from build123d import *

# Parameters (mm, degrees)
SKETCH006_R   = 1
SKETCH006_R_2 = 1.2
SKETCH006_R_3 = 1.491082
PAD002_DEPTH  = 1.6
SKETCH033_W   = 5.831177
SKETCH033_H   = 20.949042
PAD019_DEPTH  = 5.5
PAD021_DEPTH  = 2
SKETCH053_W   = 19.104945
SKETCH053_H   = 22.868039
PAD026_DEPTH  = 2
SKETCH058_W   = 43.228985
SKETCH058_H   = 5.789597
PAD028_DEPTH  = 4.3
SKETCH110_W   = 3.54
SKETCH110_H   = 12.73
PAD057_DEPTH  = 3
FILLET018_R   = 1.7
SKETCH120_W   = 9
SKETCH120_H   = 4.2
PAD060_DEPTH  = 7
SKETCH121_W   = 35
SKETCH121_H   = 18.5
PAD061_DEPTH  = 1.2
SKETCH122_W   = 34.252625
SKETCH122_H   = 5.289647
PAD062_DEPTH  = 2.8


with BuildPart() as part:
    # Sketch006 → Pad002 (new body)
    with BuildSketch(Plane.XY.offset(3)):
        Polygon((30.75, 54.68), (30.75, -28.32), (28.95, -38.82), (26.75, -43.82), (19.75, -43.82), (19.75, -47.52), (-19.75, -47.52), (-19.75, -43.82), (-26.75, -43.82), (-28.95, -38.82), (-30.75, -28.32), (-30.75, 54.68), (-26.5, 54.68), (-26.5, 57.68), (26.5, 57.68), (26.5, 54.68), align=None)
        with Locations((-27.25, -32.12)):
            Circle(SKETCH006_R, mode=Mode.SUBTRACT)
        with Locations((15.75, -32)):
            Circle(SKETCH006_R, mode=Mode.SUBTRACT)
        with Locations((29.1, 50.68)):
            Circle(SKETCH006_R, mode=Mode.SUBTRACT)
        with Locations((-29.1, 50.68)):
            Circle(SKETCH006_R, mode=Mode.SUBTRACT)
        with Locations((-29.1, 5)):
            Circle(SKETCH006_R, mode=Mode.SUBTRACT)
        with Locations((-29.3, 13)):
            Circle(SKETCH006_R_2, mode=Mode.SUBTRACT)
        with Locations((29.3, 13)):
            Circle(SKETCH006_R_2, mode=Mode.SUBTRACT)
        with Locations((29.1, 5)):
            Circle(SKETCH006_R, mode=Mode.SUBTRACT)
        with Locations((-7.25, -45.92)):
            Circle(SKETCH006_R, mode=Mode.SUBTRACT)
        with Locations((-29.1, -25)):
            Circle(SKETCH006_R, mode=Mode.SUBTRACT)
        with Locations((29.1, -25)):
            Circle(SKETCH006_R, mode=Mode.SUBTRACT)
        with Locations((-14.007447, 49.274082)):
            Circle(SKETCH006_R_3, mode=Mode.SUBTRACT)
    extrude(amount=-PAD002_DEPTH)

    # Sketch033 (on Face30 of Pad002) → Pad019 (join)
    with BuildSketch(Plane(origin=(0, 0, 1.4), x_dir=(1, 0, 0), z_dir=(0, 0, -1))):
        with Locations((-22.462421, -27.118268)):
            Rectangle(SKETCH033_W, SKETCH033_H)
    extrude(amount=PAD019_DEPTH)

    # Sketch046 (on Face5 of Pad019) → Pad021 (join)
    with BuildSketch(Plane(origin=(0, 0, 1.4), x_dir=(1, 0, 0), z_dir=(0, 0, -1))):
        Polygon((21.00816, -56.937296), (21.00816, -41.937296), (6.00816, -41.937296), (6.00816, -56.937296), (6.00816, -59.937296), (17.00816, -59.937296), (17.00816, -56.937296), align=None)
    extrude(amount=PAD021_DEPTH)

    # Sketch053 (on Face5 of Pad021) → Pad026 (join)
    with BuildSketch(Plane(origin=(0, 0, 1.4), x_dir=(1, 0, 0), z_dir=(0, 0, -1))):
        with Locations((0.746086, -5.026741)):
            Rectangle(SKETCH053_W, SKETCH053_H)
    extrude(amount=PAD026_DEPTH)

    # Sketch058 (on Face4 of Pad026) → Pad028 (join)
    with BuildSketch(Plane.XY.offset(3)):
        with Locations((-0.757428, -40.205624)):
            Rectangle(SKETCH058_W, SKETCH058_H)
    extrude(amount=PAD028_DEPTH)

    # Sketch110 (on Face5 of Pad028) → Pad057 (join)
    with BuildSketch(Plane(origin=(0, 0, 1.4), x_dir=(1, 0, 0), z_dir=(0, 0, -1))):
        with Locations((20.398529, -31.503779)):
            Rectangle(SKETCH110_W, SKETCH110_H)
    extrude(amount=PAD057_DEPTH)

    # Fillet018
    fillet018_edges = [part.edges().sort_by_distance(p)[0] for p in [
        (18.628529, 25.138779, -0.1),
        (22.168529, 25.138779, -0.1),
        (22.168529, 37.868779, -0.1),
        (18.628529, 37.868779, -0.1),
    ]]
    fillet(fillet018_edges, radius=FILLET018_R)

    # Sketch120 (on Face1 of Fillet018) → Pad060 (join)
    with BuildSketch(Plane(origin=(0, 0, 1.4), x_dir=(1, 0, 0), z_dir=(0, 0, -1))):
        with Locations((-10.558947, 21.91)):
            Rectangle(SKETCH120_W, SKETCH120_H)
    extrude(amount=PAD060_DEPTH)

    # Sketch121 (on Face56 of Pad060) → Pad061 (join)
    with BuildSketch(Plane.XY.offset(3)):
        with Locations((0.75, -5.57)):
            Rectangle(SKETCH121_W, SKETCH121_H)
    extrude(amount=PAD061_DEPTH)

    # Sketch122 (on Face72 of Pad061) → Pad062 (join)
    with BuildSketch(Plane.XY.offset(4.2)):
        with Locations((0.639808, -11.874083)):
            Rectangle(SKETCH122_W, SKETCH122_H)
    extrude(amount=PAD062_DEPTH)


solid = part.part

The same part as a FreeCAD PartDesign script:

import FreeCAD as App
import Part
import Sketcher
from FreeCAD import Vector
Q = App.Units.Quantity


def edges_at(feature, points):
    """Names of the edges that pass closest to the given points."""
    edges = feature.Shape.Edges
    near = lambda p: min(range(len(edges)), key=lambda i: edges[i].distToShape(Part.Vertex(*p))[0])
    return sorted({f"Edge{near(p) + 1}" for p in points})


def add_polygon(sketch, points):
    """Adds a closed chain of lines whose ends are joined by coincident constraints."""
    first, n = sketch.GeometryCount, len(points)
    for a, b in zip(points, points[1:] + points[:1]):
        sketch.addGeometry(Part.LineSegment(App.Vector(*a, 0), App.Vector(*b, 0)), False)
    for i in range(n):
        sketch.addConstraint(Sketcher.Constraint("Coincident", first + i, 2, first + (i + 1) % n, 1))

doc = App.newDocument("Part")
params = doc.addObject("Spreadsheet::Sheet", "Params")
for row, (alias, value) in enumerate([
    ("sketch1_diameter", "2 mm"),
    ("sketch1_diameter2", "2.4 mm"),
    ("sketch1_width", "53 mm"),
    ("sketch1_width2", "7 mm"),
    ("sketch1_height", "83 mm"),
    ("pad1_length", "1.6 mm"),
    ("pad2_length", "5.5 mm"),
    ("sketch3_width", "15 mm"),
    ("sketch3_width2", "11 mm"),
    ("sketch3_height", "18 mm"),
    ("pad3_length", "2 mm"),
    ("pad4_length", "2 mm"),
    ("pad5_length", "4.3 mm"),
    ("sketch6_width", "3.54 mm"),
    ("sketch6_height", "12.73 mm"),
    ("pad6_length", "3 mm"),
    ("fillet_radius", "1.7 mm"),
    ("sketch7_width", "9 mm"),
    ("sketch7_height", "4.2 mm"),
    ("pad7_length", "7 mm"),
    ("sketch8_width", "35 mm"),
    ("sketch8_height", "18.5 mm"),
    ("pad8_length", "1.2 mm"),
    ("pad9_length", "2.8 mm"),
], start=1):
    params.set(f"A{row}", alias)
    params.set(f"B{row}", "=" + value)
    params.setAlias(f"B{row}", alias)

body = doc.addObject("PartDesign::Body", "Body")

sketch1 = doc.addObject("Sketcher::SketchObject", "Sketch")
body.addObject(sketch1)
sketch1.AttachmentSupport = (doc.XY_Plane, [""])
sketch1.MapMode = "FlatFace"
sketch1.AttachmentOffset = App.Placement(Vector(0, 0, 3), App.Rotation())
add_polygon(sketch1, [(30.8, -28.3), (30.8, 54.7), (26.5, 54.7), (26.5, 57.7), (-26.5, 57.7), (-26.5, 54.7), (-30.8, 54.7), (-30.8, -28.3), (-28.9, -38.8), (-26.8, -43.8), (-19.8, -43.8), (-19.8, -47.5), (19.8, -47.5), (19.8, -43.8), (26.8, -43.8), (28.9, -38.8)])
sketch1.addGeometry(Part.Circle(Vector(29.1, -25, 0), Vector(0, 0, 1), 1), False)
sketch1.addGeometry(Part.Circle(Vector(15.8, -32, 0), Vector(0, 0, 1), 1), False)
sketch1.addGeometry(Part.Circle(Vector(-7.2, -45.9, 0), Vector(0, 0, 1), 1), False)
sketch1.addGeometry(Part.Circle(Vector(-27.2, -32.1, 0), Vector(0, 0, 1), 1), False)
sketch1.addGeometry(Part.Circle(Vector(-29.1, -25, 0), Vector(0, 0, 1), 1), False)
sketch1.addGeometry(Part.Circle(Vector(29.1, 5, 0), Vector(0, 0, 1), 1), False)
sketch1.addGeometry(Part.Circle(Vector(29.3, 13, 0), Vector(0, 0, 1), 1.2), False)
sketch1.addGeometry(Part.Circle(Vector(29.1, 50.7, 0), Vector(0, 0, 1), 1), False)
sketch1.addGeometry(Part.Circle(Vector(-29.1, 5, 0), Vector(0, 0, 1), 1), False)
sketch1.addGeometry(Part.Circle(Vector(-29.3, 13, 0), Vector(0, 0, 1), 1.2), False)
sketch1.addGeometry(Part.Circle(Vector(-14, 49.3, 0), Vector(0, 0, 1), 1.5), False)
sketch1.addGeometry(Part.Circle(Vector(-29.1, 50.7, 0), Vector(0, 0, 1), 1), False)
sketch1.addConstraint([
    Sketcher.Constraint("Vertical", 0),
    Sketcher.Constraint("Horizontal", 1),
    Sketcher.Constraint("Vertical", 2),
    Sketcher.Constraint("Horizontal", 3),
    Sketcher.Constraint("Vertical", 4),
    Sketcher.Constraint("Horizontal", 5),
    Sketcher.Constraint("Vertical", 6),
    Sketcher.Constraint("Horizontal", 9),
    Sketcher.Constraint("Vertical", 10),
    Sketcher.Constraint("Horizontal", 11),
    Sketcher.Constraint("Vertical", 12),
    Sketcher.Constraint("Horizontal", 13),
    Sketcher.Constraint("Equal", 16, 17),
    Sketcher.Constraint("Equal", 17, 18),
    Sketcher.Constraint("Equal", 18, 19),
    Sketcher.Constraint("Equal", 19, 20),
    Sketcher.Constraint("Equal", 20, 21),
    Sketcher.Constraint("Equal", 21, 23),
    Sketcher.Constraint("Equal", 23, 24),
    Sketcher.Constraint("Equal", 22, 25),
    Sketcher.Constraint("Equal", 24, 27),
    Sketcher.Constraint("Symmetric", 16, 3, 20, 3, -2),
    Sketcher.Constraint("Symmetric", 21, 3, 24, 3, -2),
    Sketcher.Constraint("Symmetric", 22, 3, 25, 3, -2),
    Sketcher.Constraint("Symmetric", 23, 3, 27, 3, -2),
    Sketcher.Constraint("Symmetric", 1, 2, 4, 2, -2),
    Sketcher.Constraint("Symmetric", 9, 2, 12, 2, -2),
    Sketcher.Constraint("Symmetric", 7, 2, 14, 2, -2),
    Sketcher.Constraint("Symmetric", 6, 2, 15, 2, -2),
    Sketcher.Constraint("Vertical", 16, 3, 21, 3),
    Sketcher.Constraint("Vertical", 21, 3, 23, 3),
    Sketcher.Constraint("Equal", 9, 13),
    Sketcher.Constraint("Diameter", 16, Q("2 mm")),
    Sketcher.Constraint("Diameter", 22, Q("2.4 mm")),
    Sketcher.Constraint("DistanceX", 3, 2, 3, 1, Q("53 mm")),
    Sketcher.Constraint("DistanceX", 9, 1, 9, 2, Q("7 mm")),
    Sketcher.Constraint("DistanceY", 0, 1, 0, 2, Q("83 mm")),
    Sketcher.Constraint("DistanceY", 2, 1, 2, 2, Q("3 mm")),
    Sketcher.Constraint("DistanceX", 11, 1, 11, 2, Q("39.5 mm")),
    Sketcher.Constraint("DistanceY", 10, 2, 10, 1, Q("3.7 mm")),
    Sketcher.Constraint("DistanceY", 16, 3, -1, 1, Q("25 mm")),
    Sketcher.Constraint("DistanceY", 17, 3, -1, 1, Q("32 mm")),
    Sketcher.Constraint("DistanceY", -1, 1, 21, 3, Q("5 mm")),
    Sketcher.Constraint("DistanceY", -1, 1, 22, 3, Q("13 mm")),
    Sketcher.Constraint("DistanceX", 18, 3, 17, 3, Q("23 mm")),
    Sketcher.Constraint("DistanceX", 19, 3, 18, 3, Q("20 mm")),
    Sketcher.Constraint("DistanceY", 23, 3, 0, 2, Q("4 mm")),
    Sketcher.Constraint("DistanceY", 8, 2, 7, 2, Q("5 mm")),
    Sketcher.Constraint("DistanceX", 6, 2, 8, 2, Q("4 mm")),
    Sketcher.Constraint("DistanceX", 17, 3, 11, 2, Q("4 mm")),
    Sketcher.Constraint("DistanceX", -1, 1, 16, 3, Q("29.1 mm")),
    Sketcher.Constraint("DistanceX", -1, 1, 22, 3, Q("29.3 mm")),
    Sketcher.Constraint("DistanceY", 18, 3, 19, 3, Q("13.8 mm")),
    Sketcher.Constraint("DistanceY", 19, 3, 6, 2, Q("3.8 mm")),
    Sketcher.Constraint("DistanceX", 7, 2, 19, 3, Q("1.7 mm")),
    Sketcher.Constraint("DistanceY", 7, 2, 19, 3, Q("6.7 mm")),
    Sketcher.Constraint("DistanceY", 18, 3, -1, 1, Q("45.92 mm")),
    Sketcher.Constraint("Diameter", 26, Q("2.982164 mm")),
    Sketcher.Constraint("DistanceX", 26, 3, -1, 1, Q("14.007447 mm")),
    Sketcher.Constraint("DistanceY", -1, 1, 26, 3, Q("49.274082 mm")),
])
sketch1.setExpression("Constraints[48]", "Params.sketch1_diameter")
sketch1.setExpression("Constraints[49]", "Params.sketch1_diameter2")
sketch1.setExpression("Constraints[50]", "Params.sketch1_width")
sketch1.setExpression("Constraints[51]", "Params.sketch1_width2")
sketch1.setExpression("Constraints[52]", "Params.sketch1_height")
pad1 = doc.addObject("PartDesign::Pad", "Pad")
body.addObject(pad1)
pad1.Profile = sketch1
pad1.setExpression("Length", "Params.pad1_length")
pad1.Reversed = True

sketch2 = doc.addObject("Sketcher::SketchObject", "Sketch001")
body.addObject(sketch2)
sketch2.AttachmentSupport = (doc.XY_Plane, [""])
sketch2.MapMode = "FlatFace"
sketch2.AttachmentOffset = App.Placement(Vector(0, 0, 1.4), App.Rotation())
add_polygon(sketch2, [(-25, 17), (-25, 38), (-20, 38), (-20, 17)])
sketch2.addConstraint([
    Sketcher.Constraint("Vertical", 0),
    Sketcher.Constraint("Horizontal", 1),
    Sketcher.Constraint("Vertical", 2),
    Sketcher.Constraint("Horizontal", 3),
    Sketcher.Constraint("DistanceX", 1, 1, 1, 2, Q("5.831177 mm")),
    Sketcher.Constraint("DistanceY", 0, 1, 0, 2, Q("20.949042 mm")),
    Sketcher.Constraint("DistanceX", 0, 2, -1, 1, Q("25.37801 mm")),
    Sketcher.Constraint("DistanceY", -1, 1, 0, 2, Q("37.592789 mm")),
])
pad2 = doc.addObject("PartDesign::Pad", "Pad001")
body.addObject(pad2)
pad2.Profile = sketch2
pad2.setExpression("Length", "Params.pad2_length")
pad2.Reversed = True

sketch3 = doc.addObject("Sketcher::SketchObject", "Sketch002")
body.addObject(sketch3)
sketch3.AttachmentSupport = (doc.XY_Plane, [""])
sketch3.MapMode = "FlatFace"
sketch3.AttachmentOffset = App.Placement(Vector(0, 0, 1.4), App.Rotation())
add_polygon(sketch3, [(21, 56.9), (21, 41.9), (6, 41.9), (6, 59.9), (17, 59.9), (17, 56.9)])
sketch3.addConstraint([
    Sketcher.Constraint("Vertical", 0),
    Sketcher.Constraint("Horizontal", 1),
    Sketcher.Constraint("Vertical", 2),
    Sketcher.Constraint("Horizontal", 3),
    Sketcher.Constraint("Vertical", 4),
    Sketcher.Constraint("Horizontal", 5),
    Sketcher.Constraint("Equal", 1, 0),
    Sketcher.Constraint("DistanceX", 1, 2, 1, 1, Q("15 mm")),
    Sketcher.Constraint("DistanceX", 3, 1, 3, 2, Q("11 mm")),
    Sketcher.Constraint("DistanceY", 2, 1, 2, 2, Q("18 mm")),
    Sketcher.Constraint("DistanceX", -1, 1, 0, 2, Q("21.00816 mm")),
    Sketcher.Constraint("DistanceY", -1, 1, 0, 2, Q("41.937296 mm")),
])
sketch3.setExpression("Constraints[13]", "Params.sketch3_width")
sketch3.setExpression("Constraints[14]", "Params.sketch3_width2")
sketch3.setExpression("Constraints[15]", "Params.sketch3_height")
pad3 = doc.addObject("PartDesign::Pad", "Pad002")
body.addObject(pad3)
pad3.Profile = sketch3
pad3.setExpression("Length", "Params.pad3_length")
pad3.Reversed = True

sketch4 = doc.addObject("Sketcher::SketchObject", "Sketch003")
body.addObject(sketch4)
sketch4.AttachmentSupport = (doc.XY_Plane, [""])
sketch4.MapMode = "FlatFace"
sketch4.AttachmentOffset = App.Placement(Vector(0, 0, 1.4), App.Rotation())
add_polygon(sketch4, [(-9, -6), (-9, 16), (10, 16), (10, -6)])
sketch4.addConstraint([
    Sketcher.Constraint("Vertical", 0),
    Sketcher.Constraint("Horizontal", 1),
    Sketcher.Constraint("Vertical", 2),
    Sketcher.Constraint("Horizontal", 3),
    Sketcher.Constraint("DistanceY", 0, 1, 0, 2, Q("22.868039 mm")),
    Sketcher.Constraint("DistanceX", 1, 1, 1, 2, Q("19.104945 mm")),
    Sketcher.Constraint("DistanceY", -1, 1, 0, 2, Q("16.46076 mm")),
    Sketcher.Constraint("DistanceX", -1, 1, 1, 2, Q("10.298559 mm")),
])
pad4 = doc.addObject("PartDesign::Pad", "Pad003")
body.addObject(pad4)
pad4.Profile = sketch4
pad4.setExpression("Length", "Params.pad4_length")
pad4.Reversed = True

sketch5 = doc.addObject("Sketcher::SketchObject", "Sketch004")
body.addObject(sketch5)
sketch5.AttachmentSupport = (doc.XY_Plane, [""])
sketch5.MapMode = "FlatFace"
sketch5.AttachmentOffset = App.Placement(Vector(0, 0, 3), App.Rotation())
add_polygon(sketch5, [(-22, -37), (-22, -43), (21, -43), (21, -37)])
sketch5.addConstraint([
    Sketcher.Constraint("Vertical", 0),
    Sketcher.Constraint("Horizontal", 1),
    Sketcher.Constraint("Vertical", 2),
    Sketcher.Constraint("Horizontal", 3),
    Sketcher.Constraint("DistanceX", 1, 1, 1, 2, Q("43.228985 mm")),
    Sketcher.Constraint("DistanceY", 0, 2, 0, 1, Q("5.789597 mm")),
    Sketcher.Constraint("DistanceX", 0, 2, -1, 1, Q("22.371921 mm")),
    Sketcher.Constraint("DistanceY", 0, 2, -1, 1, Q("43.100423 mm")),
])
pad5 = doc.addObject("PartDesign::Pad", "Pad004")
body.addObject(pad5)
pad5.Profile = sketch5
pad5.setExpression("Length", "Params.pad5_length")

sketch6 = doc.addObject("Sketcher::SketchObject", "Sketch005")
body.addObject(sketch6)
sketch6.AttachmentSupport = (doc.XY_Plane, [""])
sketch6.MapMode = "FlatFace"
sketch6.AttachmentOffset = App.Placement(Vector(0, 0, 1.4), App.Rotation())
add_polygon(sketch6, [(18.6, 25.1), (18.6, 37.9), (22.2, 37.9), (22.2, 25.1)])
sketch6.addConstraint([
    Sketcher.Constraint("Vertical", 0),
    Sketcher.Constraint("Horizontal", 1),
    Sketcher.Constraint("Vertical", 2),
    Sketcher.Constraint("Horizontal", 3),
    Sketcher.Constraint("DistanceX", 1, 1, 1, 2, Q("3.54 mm")),
    Sketcher.Constraint("DistanceY", 0, 1, 0, 2, Q("12.73 mm")),
    Sketcher.Constraint("DistanceX", -1, 1, 0, 2, Q("18.628529 mm")),
    Sketcher.Constraint("DistanceY", -1, 1, 0, 2, Q("37.868779 mm")),
])
sketch6.setExpression("Constraints[8]", "Params.sketch6_width")
sketch6.setExpression("Constraints[9]", "Params.sketch6_height")
pad6 = doc.addObject("PartDesign::Pad", "Pad005")
body.addObject(pad6)
pad6.Profile = sketch6
pad6.setExpression("Length", "Params.pad6_length")
pad6.Reversed = True
doc.recompute()

fillet = doc.addObject("PartDesign::Fillet", "Fillet")
body.addObject(fillet)
fillet.Base = (pad6, edges_at(pad6, [
    (18.629, 25.139, -0.1),
    (22.169, 25.139, -0.1),
    (22.169, 37.869, -0.1),
    (18.629, 37.869, -0.1),
]))
fillet.setExpression("Radius", "Params.fillet_radius")

sketch7 = doc.addObject("Sketcher::SketchObject", "Sketch006")
body.addObject(sketch7)
sketch7.AttachmentSupport = (doc.XY_Plane, [""])
sketch7.MapMode = "FlatFace"
sketch7.AttachmentOffset = App.Placement(Vector(0, 0, 1.4), App.Rotation())
add_polygon(sketch7, [(-15.1, -24), (-15.1, -19.8), (-6.1, -19.8), (-6.1, -24)])
sketch7.addConstraint([
    Sketcher.Constraint("Vertical", 0),
    Sketcher.Constraint("Horizontal", 1),
    Sketcher.Constraint("Vertical", 2),
    Sketcher.Constraint("Horizontal", 3),
    Sketcher.Constraint("DistanceX", 1, 1, 1, 2, Q("9 mm")),
    Sketcher.Constraint("DistanceY", 0, 1, 0, 2, Q("4.2 mm")),
    Sketcher.Constraint("DistanceY", 0, 2, -1, 1, Q("19.81 mm")),
    Sketcher.Constraint("DistanceX", 0, 2, -1, 1, Q("15.058947 mm")),
])
sketch7.setExpression("Constraints[8]", "Params.sketch7_width")
sketch7.setExpression("Constraints[9]", "Params.sketch7_height")
pad7 = doc.addObject("PartDesign::Pad", "Pad006")
body.addObject(pad7)
pad7.Profile = sketch7
pad7.setExpression("Length", "Params.pad7_length")
pad7.Reversed = True

sketch8 = doc.addObject("Sketcher::SketchObject", "Sketch007")
body.addObject(sketch8)
sketch8.AttachmentSupport = (doc.XY_Plane, [""])
sketch8.MapMode = "FlatFace"
sketch8.AttachmentOffset = App.Placement(Vector(0, 0, 3), App.Rotation())
add_polygon(sketch8, [(-17, 4), (-17, -15), (18, -15), (18, 4)])
sketch8.addConstraint([
    Sketcher.Constraint("Vertical", 0),
    Sketcher.Constraint("Horizontal", 1),
    Sketcher.Constraint("Vertical", 2),
    Sketcher.Constraint("Horizontal", 3),
    Sketcher.Constraint("DistanceX", 1, 1, 1, 2, Q("35 mm")),
    Sketcher.Constraint("DistanceY", 0, 2, 0, 1, Q("18.5 mm")),
    Sketcher.Constraint("DistanceX", 0, 2, -1, 1, Q("16.75 mm")),
    Sketcher.Constraint("DistanceY", 0, 2, -1, 1, Q("14.82 mm")),
])
sketch8.setExpression("Constraints[8]", "Params.sketch8_width")
sketch8.setExpression("Constraints[9]", "Params.sketch8_height")
pad8 = doc.addObject("PartDesign::Pad", "Pad007")
body.addObject(pad8)
pad8.Profile = sketch8
pad8.setExpression("Length", "Params.pad8_length")

sketch9 = doc.addObject("Sketcher::SketchObject", "Sketch008")
body.addObject(sketch9)
sketch9.AttachmentSupport = (doc.XY_Plane, [""])
sketch9.MapMode = "FlatFace"
sketch9.AttachmentOffset = App.Placement(Vector(0, 0, 4.2), App.Rotation())
add_polygon(sketch9, [(-16, -9), (-16, -15), (18, -15), (18, -9)])
sketch9.addConstraint([
    Sketcher.Constraint("Vertical", 0),
    Sketcher.Constraint("Horizontal", 1),
    Sketcher.Constraint("Vertical", 2),
    Sketcher.Constraint("Horizontal", 3),
    Sketcher.Constraint("DistanceX", 1, 1, 1, 2, Q("34.252625 mm")),
    Sketcher.Constraint("DistanceY", 0, 2, 0, 1, Q("5.289647 mm")),
    Sketcher.Constraint("DistanceX", -1, 1, 1, 2, Q("17.76612 mm")),
    Sketcher.Constraint("DistanceY", 2, 2, -1, 1, Q("9.229259 mm")),
])
pad9 = doc.addObject("PartDesign::Pad", "Pad008")
body.addObject(pad9)
pad9.Profile = sketch9
pad9.setExpression("Length", "Params.pad9_length")

doc.recompute()
